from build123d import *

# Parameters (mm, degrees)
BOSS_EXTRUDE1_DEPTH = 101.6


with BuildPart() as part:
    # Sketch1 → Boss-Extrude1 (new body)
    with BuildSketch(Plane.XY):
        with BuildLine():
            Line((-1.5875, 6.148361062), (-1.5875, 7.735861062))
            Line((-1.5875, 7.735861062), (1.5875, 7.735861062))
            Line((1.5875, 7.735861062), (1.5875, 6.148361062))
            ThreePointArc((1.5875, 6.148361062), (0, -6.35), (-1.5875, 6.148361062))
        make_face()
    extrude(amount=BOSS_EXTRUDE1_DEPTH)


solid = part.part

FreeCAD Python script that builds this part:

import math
import FreeCAD as App
import Part
import Sketcher

V = App.Vector
Q = App.Units.Quantity

doc = App.newDocument("Part")
body = doc.addObject("PartDesign::Body", "Body")

# Sketch on XY plane
sketch1 = body.newObject("Sketcher::SketchObject", "Sketch")
sketch1.AttachmentSupport = (doc.getObject("XY_Plane"), [""])
sketch1.MapMode = "FlatFace"
sketch1.addGeometry([
    Part.LineSegment(V(-1.6, 7.7, 0), V(-1.6, 6.1, 0)),
    Part.ArcOfCircle(Part.Circle(V(0, 0, 0), V(0, 0, 1), 6.3), math.radians(104), math.radians(436)),
    Part.LineSegment(V(1.6, 6.1, 0), V(1.6, 7.7, 0)),
    Part.LineSegment(V(1.6, 7.7, 0), V(-1.6, 7.7, 0)),
], False)
sketch1.addConstraint([
    Sketcher.Constraint("Coincident", 0, 2, 1, 1),
    Sketcher.Constraint("Coincident", 1, 2, 2, 1),
    Sketcher.Constraint("Coincident", 2, 2, 3, 1),
    Sketcher.Constraint("Coincident", 3, 2, 0, 1),
    Sketcher.Constraint("Vertical", 0),
    Sketcher.Constraint("Vertical", 2),
    Sketcher.Constraint("Horizontal", 3),
    Sketcher.Constraint("Coincident", 1, 3, -1, 1),
    Sketcher.Constraint("Horizontal", 0, 2, 1, 2),
    Sketcher.Constraint("Radius", 1, Q("0.25 in")),
    Sketcher.Constraint("DistanceX", 3, 2, 3, 1, Q("0.125 in")),
    Sketcher.Constraint("DistanceY", 0, 2, 0, 1, Q("0.0625 in")),
])
pad1 = body.newObject("PartDesign::Pad", "Pad")
pad1.Profile = sketch1
pad1.Length = Q("4 in")

doc.recompute()
